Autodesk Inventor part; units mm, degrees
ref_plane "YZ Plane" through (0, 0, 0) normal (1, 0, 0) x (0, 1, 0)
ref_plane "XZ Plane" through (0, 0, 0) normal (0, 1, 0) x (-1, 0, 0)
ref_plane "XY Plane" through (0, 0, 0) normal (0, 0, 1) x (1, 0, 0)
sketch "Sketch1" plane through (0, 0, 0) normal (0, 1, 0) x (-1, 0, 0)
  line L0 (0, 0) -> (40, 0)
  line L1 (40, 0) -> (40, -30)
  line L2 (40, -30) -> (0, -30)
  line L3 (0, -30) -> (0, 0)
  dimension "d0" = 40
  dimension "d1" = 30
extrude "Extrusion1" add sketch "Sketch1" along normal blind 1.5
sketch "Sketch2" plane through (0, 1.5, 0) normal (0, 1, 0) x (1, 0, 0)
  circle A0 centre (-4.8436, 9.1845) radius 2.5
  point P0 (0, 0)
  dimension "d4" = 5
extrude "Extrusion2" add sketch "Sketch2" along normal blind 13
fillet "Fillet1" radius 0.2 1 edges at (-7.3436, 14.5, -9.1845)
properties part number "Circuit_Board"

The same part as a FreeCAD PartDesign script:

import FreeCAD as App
import Part
import Sketcher
Q = App.Units.Quantity


def edges_at(feature, points):
    """Names of the edges that pass closest to the given points."""
    edges = feature.Shape.Edges
    near = lambda p: min(range(len(edges)), key=lambda i: edges[i].distToShape(Part.Vertex(*p))[0])
    return sorted({f"Edge{near(p) + 1}" for p in points})


def add_polygon(sketch, points):
    """Adds a closed chain of lines whose ends are joined by coincident constraints."""
    first, n = sketch.GeometryCount, len(points)
    for a, b in zip(points, points[1:] + points[:1]):
        sketch.addGeometry(Part.LineSegment(App.Vector(*a, 0), App.Vector(*b, 0)), False)
    for i in range(n):
        sketch.addConstraint(Sketcher.Constraint("Coincident", first + i, 2, first + (i + 1) % n, 1))

doc = App.newDocument("Part")
body = doc.addObject("PartDesign::Body", "Body")

sketch1 = body.newObject("Sketcher::SketchObject", "Sketch")
sketch1.AttachmentSupport = (doc.getObject("XZ_Plane"), [""])
sketch1.MapMode = "FlatFace"
add_polygon(sketch1, [(-40, 0), (0, 0), (0, -30), (-40, -30)])
sketch1.addConstraint([
    Sketcher.Constraint("Horizontal", 0),
    Sketcher.Constraint("Vertical", 1),
    Sketcher.Constraint("Horizontal", 2),
    Sketcher.Constraint("Vertical", 3),
    Sketcher.Constraint("Coincident", 0, 2, -1, 1),
    Sketcher.Constraint("DistanceX", 0, 1, 0, 2, Q("40 mm")),
    Sketcher.Constraint("DistanceY", 1, 2, 1, 1, Q("30 mm")),
])
pad1 = body.newObject("PartDesign::Pad", "Pad")
pad1.Profile = sketch1
pad1.Length = 1.5
pad1.Reversed = True

sketch2 = body.newObject("Sketcher::SketchObject", "Sketch001")
sketch2.AttachmentSupport = (doc.getObject("XZ_Plane"), [""])
sketch2.MapMode = "FlatFace"
sketch2.AttachmentOffset = App.Placement(App.Vector(0, 0, -1.5), App.Rotation())
sketch2.addGeometry(Part.Circle(App.Vector(-4.8436, -9.1845, 0), App.Vector(0, 0, 1), 2.5), False)
sketch2.addConstraint([
    Sketcher.Constraint("Diameter", 0, Q("5 mm")),
    Sketcher.Constraint("DistanceX", 0, 3, -1, 1, Q("4.8436 mm")),
    Sketcher.Constraint("DistanceY", 0, 3, -1, 1, Q("9.1845 mm")),
])
pad2 = body.newObject("PartDesign::Pad", "Pad001")
pad2.Profile = sketch2
pad2.Length = 13
pad2.Reversed = True
doc.recompute()

fillet = body.newObject("PartDesign::Fillet", "Fillet")
fillet.Base = (pad2, edges_at(pad2, [(-7.344, 14.5, -9.184)]))
fillet.Radius = 0.2

doc.recompute()
